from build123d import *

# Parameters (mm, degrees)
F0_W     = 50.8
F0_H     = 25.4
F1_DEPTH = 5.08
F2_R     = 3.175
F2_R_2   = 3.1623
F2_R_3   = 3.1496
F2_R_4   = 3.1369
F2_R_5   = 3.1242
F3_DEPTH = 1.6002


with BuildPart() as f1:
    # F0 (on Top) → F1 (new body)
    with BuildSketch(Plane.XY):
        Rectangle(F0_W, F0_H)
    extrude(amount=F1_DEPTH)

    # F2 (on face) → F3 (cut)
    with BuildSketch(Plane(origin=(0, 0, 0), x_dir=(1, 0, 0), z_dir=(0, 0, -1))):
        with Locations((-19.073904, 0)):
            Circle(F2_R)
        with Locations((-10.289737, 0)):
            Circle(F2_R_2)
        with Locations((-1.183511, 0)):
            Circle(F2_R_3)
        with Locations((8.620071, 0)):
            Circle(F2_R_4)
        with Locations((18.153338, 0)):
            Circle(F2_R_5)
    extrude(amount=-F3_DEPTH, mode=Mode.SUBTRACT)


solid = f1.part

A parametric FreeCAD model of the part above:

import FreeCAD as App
import Part
import Sketcher
from FreeCAD import Vector
Q = App.Units.Quantity

doc = App.newDocument("Part")
body = doc.addObject("PartDesign::Body", "Body")

sketch1 = body.newObject("Sketcher::SketchObject", "Sketch")
sketch1.AttachmentSupport = (doc.getObject("XY_Plane"), [""])
sketch1.MapMode = "FlatFace"
sketch1.addGeometry([
    Part.LineSegment(Vector(-25.4, 12.7, 0), Vector(-25.4, -12.7, 0)),
    Part.LineSegment(Vector(-25.4, -12.7, 0), Vector(25.4, -12.7, 0)),
    Part.LineSegment(Vector(25.4, -12.7, 0), Vector(25.4, 12.7, 0)),
    Part.LineSegment(Vector(25.4, 12.7, 0), Vector(-25.4, 12.7, 0)),
], False)
sketch1.addConstraint([
    Sketcher.Constraint("Coincident", 0, 2, 1, 1),
    Sketcher.Constraint("Coincident", 1, 2, 2, 1),
    Sketcher.Constraint("Coincident", 2, 2, 3, 1),
    Sketcher.Constraint("Coincident", 3, 2, 0, 1),
    Sketcher.Constraint("Vertical", 0),
    Sketcher.Constraint("Horizontal", 1),
    Sketcher.Constraint("Vertical", 2),
    Sketcher.Constraint("Horizontal", 3),
    Sketcher.Constraint("Symmetric", 0, 2, 2, 2, -1, 1),
    Sketcher.Constraint("DistanceX", 1, 1, 1, 2, Q("2 in")),
    Sketcher.Constraint("DistanceY", 0, 2, 0, 1, Q("1 in")),
])
pad1 = body.newObject("PartDesign::Pad", "Pad")
pad1.Profile = sketch1
pad1.Length = Q("0.2 in")

sketch2 = body.newObject("Sketcher::SketchObject", "Sketch001")
sketch2.AttachmentSupport = (doc.getObject("XY_Plane"), [""])
sketch2.MapMode = "FlatFace"
sketch2.addGeometry([
    Part.Circle(Vector(-19.073904, 0, 0), Vector(0, 0, 1), 3.175),
    Part.Circle(Vector(-10.289737, 0, 0), Vector(0, 0, 1), 3.1623),
    Part.Circle(Vector(-1.183511, 0, 0), Vector(0, 0, 1), 3.1496),
    Part.Circle(Vector(8.620071, 0, 0), Vector(0, 0, 1), 3.1369),
    Part.Circle(Vector(18.153338, 0, 0), Vector(0, 0, 1), 3.1242),
], False)
sketch2.addConstraint([
    Sketcher.Constraint("PointOnObject", 0, 3, -1),
    Sketcher.Constraint("PointOnObject", 1, 3, -1),
    Sketcher.Constraint("PointOnObject", 2, 3, -1),
    Sketcher.Constraint("PointOnObject", 3, 3, -1),
    Sketcher.Constraint("PointOnObject", 4, 3, -1),
    Sketcher.Constraint("Diameter", 0, Q("0.25 in")),
    Sketcher.Constraint("Diameter", 1, Q("0.249 in")),
    Sketcher.Constraint("Diameter", 2, Q("0.248 in")),
    Sketcher.Constraint("Diameter", 3, Q("0.247 in")),
    Sketcher.Constraint("Diameter", 4, Q("0.246 in")),
    Sketcher.Constraint("DistanceX", 2, 3, -1, 1, 1.183511),
    Sketcher.Constraint("DistanceX", -1, 1, 3, 3, 8.620071),
    Sketcher.Constraint("DistanceX", -1, 1, 4, 3, 18.153338),
    Sketcher.Constraint("DistanceX", 0, 3, -1, 1, 19.073904),
    Sketcher.Constraint("DistanceX", 1, 3, -1, 1, 10.289737),
])
pocket1 = body.newObject("PartDesign::Pocket", "Pocket")
pocket1.Profile = sketch2
pocket1.Length = Q("0.063 in")
pocket1.Reversed = True

doc.recompute()
